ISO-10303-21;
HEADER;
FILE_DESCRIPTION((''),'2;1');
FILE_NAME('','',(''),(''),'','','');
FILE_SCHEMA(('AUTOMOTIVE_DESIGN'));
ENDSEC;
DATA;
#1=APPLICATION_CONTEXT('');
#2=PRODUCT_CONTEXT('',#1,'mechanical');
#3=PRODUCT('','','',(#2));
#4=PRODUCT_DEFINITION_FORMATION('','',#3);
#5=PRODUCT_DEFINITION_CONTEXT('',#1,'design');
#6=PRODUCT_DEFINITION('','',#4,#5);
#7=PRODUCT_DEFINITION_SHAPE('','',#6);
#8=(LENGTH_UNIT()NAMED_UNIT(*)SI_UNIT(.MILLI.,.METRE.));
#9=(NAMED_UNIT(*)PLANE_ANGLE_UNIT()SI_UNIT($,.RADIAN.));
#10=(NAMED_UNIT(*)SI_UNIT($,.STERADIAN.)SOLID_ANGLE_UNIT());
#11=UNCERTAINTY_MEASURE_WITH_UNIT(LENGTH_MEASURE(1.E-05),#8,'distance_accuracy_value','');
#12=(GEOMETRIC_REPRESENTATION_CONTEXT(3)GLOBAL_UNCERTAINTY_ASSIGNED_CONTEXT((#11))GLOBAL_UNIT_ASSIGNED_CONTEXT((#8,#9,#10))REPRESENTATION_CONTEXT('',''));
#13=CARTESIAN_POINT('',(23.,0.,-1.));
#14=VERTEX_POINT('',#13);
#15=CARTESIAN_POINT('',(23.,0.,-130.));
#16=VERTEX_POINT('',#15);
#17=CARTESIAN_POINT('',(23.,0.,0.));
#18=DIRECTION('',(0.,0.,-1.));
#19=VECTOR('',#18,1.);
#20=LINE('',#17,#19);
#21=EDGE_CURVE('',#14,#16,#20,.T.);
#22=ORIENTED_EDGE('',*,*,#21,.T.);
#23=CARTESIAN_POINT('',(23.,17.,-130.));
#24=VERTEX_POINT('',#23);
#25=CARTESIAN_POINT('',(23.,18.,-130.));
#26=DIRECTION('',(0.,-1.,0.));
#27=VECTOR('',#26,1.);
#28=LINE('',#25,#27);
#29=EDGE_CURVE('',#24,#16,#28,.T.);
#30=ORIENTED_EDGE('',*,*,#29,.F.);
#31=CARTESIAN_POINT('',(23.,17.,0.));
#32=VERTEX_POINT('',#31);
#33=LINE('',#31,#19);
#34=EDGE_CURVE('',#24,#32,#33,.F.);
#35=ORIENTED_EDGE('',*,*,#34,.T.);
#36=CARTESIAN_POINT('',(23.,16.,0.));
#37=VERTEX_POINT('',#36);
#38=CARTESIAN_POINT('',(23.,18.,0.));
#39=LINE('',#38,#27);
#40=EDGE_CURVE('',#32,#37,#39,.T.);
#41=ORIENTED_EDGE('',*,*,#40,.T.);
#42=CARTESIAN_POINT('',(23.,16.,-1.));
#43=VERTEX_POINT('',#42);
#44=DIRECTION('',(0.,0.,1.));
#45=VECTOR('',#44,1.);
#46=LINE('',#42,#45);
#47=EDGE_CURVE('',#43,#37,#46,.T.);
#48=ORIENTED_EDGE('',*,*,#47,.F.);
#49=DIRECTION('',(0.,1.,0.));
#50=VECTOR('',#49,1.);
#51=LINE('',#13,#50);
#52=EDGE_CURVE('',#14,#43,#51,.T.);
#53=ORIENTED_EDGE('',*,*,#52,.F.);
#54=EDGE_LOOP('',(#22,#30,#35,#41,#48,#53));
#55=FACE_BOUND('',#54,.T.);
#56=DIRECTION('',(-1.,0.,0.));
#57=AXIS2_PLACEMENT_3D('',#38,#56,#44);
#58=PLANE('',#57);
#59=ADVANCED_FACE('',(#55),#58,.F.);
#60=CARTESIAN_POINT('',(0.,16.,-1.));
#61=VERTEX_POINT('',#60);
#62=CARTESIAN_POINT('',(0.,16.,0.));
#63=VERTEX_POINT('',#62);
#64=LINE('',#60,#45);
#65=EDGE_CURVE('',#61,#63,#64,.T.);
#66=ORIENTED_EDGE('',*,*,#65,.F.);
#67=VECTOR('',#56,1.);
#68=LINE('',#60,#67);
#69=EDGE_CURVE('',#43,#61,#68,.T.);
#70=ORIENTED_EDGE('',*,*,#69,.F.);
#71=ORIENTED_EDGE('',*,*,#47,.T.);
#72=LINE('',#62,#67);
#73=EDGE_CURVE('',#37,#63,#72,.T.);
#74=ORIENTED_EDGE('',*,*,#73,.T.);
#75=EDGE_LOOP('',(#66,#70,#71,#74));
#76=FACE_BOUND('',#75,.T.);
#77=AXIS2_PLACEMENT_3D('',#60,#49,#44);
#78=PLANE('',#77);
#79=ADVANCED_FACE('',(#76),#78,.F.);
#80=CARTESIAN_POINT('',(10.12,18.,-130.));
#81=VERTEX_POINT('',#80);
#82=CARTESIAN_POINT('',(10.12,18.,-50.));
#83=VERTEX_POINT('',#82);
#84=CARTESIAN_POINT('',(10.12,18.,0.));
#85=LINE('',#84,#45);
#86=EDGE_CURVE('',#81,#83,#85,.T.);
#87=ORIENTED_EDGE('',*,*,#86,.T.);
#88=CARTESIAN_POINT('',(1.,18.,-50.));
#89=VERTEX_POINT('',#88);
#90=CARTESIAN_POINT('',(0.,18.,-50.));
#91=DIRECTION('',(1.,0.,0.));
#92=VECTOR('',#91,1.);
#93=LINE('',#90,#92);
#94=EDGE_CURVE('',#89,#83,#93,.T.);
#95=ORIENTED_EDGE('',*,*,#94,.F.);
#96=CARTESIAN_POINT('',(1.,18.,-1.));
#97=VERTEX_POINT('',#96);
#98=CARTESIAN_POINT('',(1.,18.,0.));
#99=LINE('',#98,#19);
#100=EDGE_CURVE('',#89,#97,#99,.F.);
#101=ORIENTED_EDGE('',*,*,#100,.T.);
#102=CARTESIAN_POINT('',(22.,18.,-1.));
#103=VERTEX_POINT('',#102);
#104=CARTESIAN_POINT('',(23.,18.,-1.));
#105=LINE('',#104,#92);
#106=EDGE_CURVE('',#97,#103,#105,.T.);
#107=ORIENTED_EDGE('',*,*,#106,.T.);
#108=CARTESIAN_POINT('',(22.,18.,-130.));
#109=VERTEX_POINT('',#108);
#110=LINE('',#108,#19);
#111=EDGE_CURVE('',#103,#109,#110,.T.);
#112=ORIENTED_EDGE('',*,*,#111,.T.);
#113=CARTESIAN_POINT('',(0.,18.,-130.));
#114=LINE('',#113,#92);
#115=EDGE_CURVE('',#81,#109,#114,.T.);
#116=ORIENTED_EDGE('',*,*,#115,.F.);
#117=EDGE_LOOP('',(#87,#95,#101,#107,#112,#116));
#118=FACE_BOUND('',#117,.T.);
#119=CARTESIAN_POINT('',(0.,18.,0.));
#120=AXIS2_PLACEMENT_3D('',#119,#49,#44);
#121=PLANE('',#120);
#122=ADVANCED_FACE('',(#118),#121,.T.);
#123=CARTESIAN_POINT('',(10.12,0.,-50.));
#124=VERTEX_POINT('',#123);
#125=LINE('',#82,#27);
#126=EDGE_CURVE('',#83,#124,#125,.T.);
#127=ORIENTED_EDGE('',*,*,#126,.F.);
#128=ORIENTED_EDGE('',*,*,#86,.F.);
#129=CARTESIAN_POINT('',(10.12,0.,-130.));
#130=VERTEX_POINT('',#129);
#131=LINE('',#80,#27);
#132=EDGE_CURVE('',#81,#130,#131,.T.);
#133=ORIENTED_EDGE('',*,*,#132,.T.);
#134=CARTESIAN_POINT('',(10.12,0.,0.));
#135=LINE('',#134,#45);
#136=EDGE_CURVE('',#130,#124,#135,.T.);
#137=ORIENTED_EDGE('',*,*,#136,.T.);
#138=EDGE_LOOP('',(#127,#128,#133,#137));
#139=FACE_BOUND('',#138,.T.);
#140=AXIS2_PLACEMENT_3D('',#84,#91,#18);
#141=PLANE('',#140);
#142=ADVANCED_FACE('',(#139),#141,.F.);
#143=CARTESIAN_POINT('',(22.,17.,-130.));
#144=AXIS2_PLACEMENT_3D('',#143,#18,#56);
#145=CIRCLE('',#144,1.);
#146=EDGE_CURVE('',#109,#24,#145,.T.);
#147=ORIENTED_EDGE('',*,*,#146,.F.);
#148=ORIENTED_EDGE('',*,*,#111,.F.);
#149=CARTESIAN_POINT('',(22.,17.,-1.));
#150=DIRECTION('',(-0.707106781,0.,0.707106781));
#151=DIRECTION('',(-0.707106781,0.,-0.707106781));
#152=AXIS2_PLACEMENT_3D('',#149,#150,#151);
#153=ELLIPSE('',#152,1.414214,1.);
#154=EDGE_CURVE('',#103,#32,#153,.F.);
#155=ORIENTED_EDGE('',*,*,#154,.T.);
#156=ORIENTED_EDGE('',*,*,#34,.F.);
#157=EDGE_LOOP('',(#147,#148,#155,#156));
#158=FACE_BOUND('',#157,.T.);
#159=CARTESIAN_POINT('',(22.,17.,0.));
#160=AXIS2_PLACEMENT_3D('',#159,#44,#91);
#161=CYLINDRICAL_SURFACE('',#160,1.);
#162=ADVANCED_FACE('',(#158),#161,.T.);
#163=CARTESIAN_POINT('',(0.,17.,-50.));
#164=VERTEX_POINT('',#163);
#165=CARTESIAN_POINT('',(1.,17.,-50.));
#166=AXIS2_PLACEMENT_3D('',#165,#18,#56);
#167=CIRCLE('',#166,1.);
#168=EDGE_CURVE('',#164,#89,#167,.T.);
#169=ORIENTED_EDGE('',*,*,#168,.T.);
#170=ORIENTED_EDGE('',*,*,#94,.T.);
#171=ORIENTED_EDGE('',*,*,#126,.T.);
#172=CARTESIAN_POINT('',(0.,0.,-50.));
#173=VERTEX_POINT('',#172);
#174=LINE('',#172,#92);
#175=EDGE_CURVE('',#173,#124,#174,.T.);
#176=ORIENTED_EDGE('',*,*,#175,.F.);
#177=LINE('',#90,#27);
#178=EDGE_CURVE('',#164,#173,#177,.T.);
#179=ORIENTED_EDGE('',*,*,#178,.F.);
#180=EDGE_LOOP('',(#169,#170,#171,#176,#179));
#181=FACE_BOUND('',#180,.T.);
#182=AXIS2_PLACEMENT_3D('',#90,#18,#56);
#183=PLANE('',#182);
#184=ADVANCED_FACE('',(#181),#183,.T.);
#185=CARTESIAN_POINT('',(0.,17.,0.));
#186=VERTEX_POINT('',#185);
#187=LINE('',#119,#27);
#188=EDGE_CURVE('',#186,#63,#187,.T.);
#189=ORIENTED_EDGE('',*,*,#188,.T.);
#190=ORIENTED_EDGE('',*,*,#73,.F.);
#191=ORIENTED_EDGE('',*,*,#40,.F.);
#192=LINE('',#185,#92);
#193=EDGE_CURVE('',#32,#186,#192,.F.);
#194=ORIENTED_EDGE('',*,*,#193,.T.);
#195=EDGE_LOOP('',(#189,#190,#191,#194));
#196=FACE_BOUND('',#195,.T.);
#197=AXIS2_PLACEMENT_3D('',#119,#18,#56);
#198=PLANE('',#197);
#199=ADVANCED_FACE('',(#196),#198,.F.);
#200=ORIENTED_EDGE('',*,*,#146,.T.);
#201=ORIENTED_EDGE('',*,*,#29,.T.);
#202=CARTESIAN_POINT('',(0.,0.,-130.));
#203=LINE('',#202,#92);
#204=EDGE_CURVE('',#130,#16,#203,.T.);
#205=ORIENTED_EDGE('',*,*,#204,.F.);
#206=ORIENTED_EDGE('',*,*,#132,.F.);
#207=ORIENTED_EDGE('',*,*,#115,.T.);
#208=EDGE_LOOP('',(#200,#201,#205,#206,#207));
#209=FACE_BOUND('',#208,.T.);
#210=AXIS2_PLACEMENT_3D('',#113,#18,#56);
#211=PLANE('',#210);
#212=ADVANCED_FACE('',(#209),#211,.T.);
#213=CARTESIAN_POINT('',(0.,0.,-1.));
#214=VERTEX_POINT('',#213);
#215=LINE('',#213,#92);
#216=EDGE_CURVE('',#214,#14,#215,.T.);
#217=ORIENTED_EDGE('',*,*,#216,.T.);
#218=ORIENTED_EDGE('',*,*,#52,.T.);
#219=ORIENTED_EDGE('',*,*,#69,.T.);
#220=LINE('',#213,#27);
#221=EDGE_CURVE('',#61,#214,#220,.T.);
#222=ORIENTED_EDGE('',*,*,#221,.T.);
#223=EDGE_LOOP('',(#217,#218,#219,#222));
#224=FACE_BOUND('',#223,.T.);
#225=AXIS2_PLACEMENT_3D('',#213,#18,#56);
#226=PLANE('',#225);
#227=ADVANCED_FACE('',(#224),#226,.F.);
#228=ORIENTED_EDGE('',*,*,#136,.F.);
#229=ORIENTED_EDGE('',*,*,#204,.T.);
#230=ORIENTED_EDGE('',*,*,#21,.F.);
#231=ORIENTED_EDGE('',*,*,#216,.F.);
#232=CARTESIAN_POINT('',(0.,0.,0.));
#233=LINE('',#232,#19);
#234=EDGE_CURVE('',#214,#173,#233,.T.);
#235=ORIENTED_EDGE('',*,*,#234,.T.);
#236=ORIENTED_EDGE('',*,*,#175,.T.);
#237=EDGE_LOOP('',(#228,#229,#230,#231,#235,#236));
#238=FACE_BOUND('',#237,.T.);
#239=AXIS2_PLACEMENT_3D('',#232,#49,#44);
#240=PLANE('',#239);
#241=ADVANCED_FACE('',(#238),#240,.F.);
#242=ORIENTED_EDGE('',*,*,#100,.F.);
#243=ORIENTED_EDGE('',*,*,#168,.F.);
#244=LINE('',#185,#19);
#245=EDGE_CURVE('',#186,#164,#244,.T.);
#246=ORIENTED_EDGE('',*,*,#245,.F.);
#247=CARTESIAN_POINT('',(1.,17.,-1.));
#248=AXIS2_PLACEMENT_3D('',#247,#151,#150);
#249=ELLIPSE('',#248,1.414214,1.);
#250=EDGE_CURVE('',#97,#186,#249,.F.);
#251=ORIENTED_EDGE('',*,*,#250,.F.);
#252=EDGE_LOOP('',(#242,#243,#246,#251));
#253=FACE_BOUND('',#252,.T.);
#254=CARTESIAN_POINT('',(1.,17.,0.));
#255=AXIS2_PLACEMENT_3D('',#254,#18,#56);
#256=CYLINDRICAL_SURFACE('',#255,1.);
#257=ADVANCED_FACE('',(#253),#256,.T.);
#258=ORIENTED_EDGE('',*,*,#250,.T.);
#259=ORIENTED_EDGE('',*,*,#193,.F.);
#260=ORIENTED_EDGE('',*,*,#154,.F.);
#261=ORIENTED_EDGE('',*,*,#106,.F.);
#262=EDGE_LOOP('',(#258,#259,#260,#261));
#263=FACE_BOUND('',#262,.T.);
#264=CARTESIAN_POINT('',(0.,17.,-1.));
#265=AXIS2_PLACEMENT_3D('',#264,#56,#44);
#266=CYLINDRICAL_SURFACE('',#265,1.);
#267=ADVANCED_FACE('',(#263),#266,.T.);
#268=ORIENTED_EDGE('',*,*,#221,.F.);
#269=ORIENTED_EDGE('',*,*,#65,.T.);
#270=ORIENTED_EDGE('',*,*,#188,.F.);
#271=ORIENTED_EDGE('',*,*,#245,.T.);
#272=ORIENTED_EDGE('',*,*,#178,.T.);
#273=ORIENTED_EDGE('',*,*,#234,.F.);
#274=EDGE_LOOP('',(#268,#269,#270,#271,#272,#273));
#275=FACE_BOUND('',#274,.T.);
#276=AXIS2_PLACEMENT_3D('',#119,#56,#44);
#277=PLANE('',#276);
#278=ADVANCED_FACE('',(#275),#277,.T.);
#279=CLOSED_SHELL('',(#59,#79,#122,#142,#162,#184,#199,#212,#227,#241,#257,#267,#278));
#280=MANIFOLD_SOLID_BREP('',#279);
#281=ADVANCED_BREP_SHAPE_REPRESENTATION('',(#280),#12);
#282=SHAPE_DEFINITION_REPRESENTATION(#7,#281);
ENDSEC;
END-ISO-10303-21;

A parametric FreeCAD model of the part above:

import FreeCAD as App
import Part
import Sketcher

V = App.Vector


def edges_at(feature, points):
    """Names of the edges that pass closest to the given points."""
    edges = feature.Shape.Edges
    near = lambda p: min(range(len(edges)), key=lambda i: edges[i].distToShape(Part.Vertex(*p))[0])
    return sorted({f"Edge{near(p) + 1}" for p in points})

doc = App.newDocument("Part")
body = doc.addObject("PartDesign::Body", "Body")

# Sketch on XZ plane
sketch1 = doc.addObject("Sketcher::SketchObject", "Sketch")
body.addObject(sketch1)
sketch1.AttachmentSupport = (doc.XZ_Plane, [""])
sketch1.MapMode = "FlatFace"
sketch1.addGeometry([
    Part.LineSegment(V(0, -50, 0), V(0, 0, 0)),  # 0
    Part.LineSegment(V(0, 0, 0), V(23, 0, 0)),  # 1
    Part.LineSegment(V(23, 0, 0), V(23, -130, 0)),  # 2
    Part.LineSegment(V(23, -130, 0), V(10, -130, 0)),  # 3
    Part.LineSegment(V(10, -130, 0), V(10, -50, 0)),  # 4
    Part.LineSegment(V(10, -50, 0), V(0, -50, 0)),  # 5
], False)
sketch1.addConstraint([
    Sketcher.Constraint("Coincident", 0, 2, 1, 1),
    Sketcher.Constraint("Coincident", 1, 2, 2, 1),
    Sketcher.Constraint("Coincident", 2, 2, 3, 1),
    Sketcher.Constraint("Coincident", 3, 2, 4, 1),
    Sketcher.Constraint("Coincident", 4, 2, 5, 1),
    Sketcher.Constraint("Coincident", 5, 2, 0, 1),
    Sketcher.Constraint("Vertical", 0),
    Sketcher.Constraint("Horizontal", 1),
    Sketcher.Constraint("Vertical", 2),
    Sketcher.Constraint("Horizontal", 3),
    Sketcher.Constraint("Vertical", 4),
    Sketcher.Constraint("Horizontal", 5),
    Sketcher.Constraint("Coincident", 0, 2, -1, 1),
    Sketcher.Constraint("DistanceX", 1, 1, 1, 2, 23.0),
    Sketcher.Constraint("DistanceY", 0, 1, 0, 2, 50.0),
    Sketcher.Constraint("DistanceY", 2, 2, 2, 1, 130.0),
    Sketcher.Constraint("DistanceX", 3, 2, 3, 1, 12.88),
])
pad1 = doc.addObject("PartDesign::Pad", "Pad")
body.addObject(pad1)
pad1.Profile = sketch1
pad1.Length = 18
pad1.Reversed = True

# Sketch on XY plane
sketch2 = doc.addObject("Sketcher::SketchObject", "Sketch001")
body.addObject(sketch2)
sketch2.AttachmentSupport = (doc.XY_Plane, [""])
sketch2.MapMode = "FlatFace"
sketch2.addGeometry([
    Part.LineSegment(V(0, 16, 0), V(0, 0, 0)),
    Part.LineSegment(V(0, 0, 0), V(23, 0, 0)),
    Part.LineSegment(V(23, 0, 0), V(23, 16, 0)),
    Part.LineSegment(V(23, 16, 0), V(0, 16, 0)),
], False)
sketch2.addConstraint([
    Sketcher.Constraint("Coincident", 0, 2, 1, 1),
    Sketcher.Constraint("Coincident", 1, 2, 2, 1),
    Sketcher.Constraint("Coincident", 2, 2, 3, 1),
    Sketcher.Constraint("Coincident", 3, 2, 0, 1),
    Sketcher.Constraint("Vertical", 0),
    Sketcher.Constraint("Horizontal", 1),
    Sketcher.Constraint("Vertical", 2),
    Sketcher.Constraint("Horizontal", 3),
    Sketcher.Constraint("Coincident", 0, 2, -1, 1),
    Sketcher.Constraint("DistanceX", 1, 1, 1, 2, 23.0),
    Sketcher.Constraint("DistanceY", 0, 2, 0, 1, 16.0),
])
pocket1 = doc.addObject("PartDesign::Pocket", "Pocket")
body.addObject(pocket1)
pocket1.Profile = sketch2
pocket1.Length = 1
doc.recompute()

fillet = doc.addObject("PartDesign::Fillet", "Fillet")
body.addObject(fillet)
fillet.Base = (pocket1, edges_at(pocket1, [(0, 18, -25), (11.5, 18, 0), (23, 18, -65)]))
fillet.Radius = 1

doc.recompute()
